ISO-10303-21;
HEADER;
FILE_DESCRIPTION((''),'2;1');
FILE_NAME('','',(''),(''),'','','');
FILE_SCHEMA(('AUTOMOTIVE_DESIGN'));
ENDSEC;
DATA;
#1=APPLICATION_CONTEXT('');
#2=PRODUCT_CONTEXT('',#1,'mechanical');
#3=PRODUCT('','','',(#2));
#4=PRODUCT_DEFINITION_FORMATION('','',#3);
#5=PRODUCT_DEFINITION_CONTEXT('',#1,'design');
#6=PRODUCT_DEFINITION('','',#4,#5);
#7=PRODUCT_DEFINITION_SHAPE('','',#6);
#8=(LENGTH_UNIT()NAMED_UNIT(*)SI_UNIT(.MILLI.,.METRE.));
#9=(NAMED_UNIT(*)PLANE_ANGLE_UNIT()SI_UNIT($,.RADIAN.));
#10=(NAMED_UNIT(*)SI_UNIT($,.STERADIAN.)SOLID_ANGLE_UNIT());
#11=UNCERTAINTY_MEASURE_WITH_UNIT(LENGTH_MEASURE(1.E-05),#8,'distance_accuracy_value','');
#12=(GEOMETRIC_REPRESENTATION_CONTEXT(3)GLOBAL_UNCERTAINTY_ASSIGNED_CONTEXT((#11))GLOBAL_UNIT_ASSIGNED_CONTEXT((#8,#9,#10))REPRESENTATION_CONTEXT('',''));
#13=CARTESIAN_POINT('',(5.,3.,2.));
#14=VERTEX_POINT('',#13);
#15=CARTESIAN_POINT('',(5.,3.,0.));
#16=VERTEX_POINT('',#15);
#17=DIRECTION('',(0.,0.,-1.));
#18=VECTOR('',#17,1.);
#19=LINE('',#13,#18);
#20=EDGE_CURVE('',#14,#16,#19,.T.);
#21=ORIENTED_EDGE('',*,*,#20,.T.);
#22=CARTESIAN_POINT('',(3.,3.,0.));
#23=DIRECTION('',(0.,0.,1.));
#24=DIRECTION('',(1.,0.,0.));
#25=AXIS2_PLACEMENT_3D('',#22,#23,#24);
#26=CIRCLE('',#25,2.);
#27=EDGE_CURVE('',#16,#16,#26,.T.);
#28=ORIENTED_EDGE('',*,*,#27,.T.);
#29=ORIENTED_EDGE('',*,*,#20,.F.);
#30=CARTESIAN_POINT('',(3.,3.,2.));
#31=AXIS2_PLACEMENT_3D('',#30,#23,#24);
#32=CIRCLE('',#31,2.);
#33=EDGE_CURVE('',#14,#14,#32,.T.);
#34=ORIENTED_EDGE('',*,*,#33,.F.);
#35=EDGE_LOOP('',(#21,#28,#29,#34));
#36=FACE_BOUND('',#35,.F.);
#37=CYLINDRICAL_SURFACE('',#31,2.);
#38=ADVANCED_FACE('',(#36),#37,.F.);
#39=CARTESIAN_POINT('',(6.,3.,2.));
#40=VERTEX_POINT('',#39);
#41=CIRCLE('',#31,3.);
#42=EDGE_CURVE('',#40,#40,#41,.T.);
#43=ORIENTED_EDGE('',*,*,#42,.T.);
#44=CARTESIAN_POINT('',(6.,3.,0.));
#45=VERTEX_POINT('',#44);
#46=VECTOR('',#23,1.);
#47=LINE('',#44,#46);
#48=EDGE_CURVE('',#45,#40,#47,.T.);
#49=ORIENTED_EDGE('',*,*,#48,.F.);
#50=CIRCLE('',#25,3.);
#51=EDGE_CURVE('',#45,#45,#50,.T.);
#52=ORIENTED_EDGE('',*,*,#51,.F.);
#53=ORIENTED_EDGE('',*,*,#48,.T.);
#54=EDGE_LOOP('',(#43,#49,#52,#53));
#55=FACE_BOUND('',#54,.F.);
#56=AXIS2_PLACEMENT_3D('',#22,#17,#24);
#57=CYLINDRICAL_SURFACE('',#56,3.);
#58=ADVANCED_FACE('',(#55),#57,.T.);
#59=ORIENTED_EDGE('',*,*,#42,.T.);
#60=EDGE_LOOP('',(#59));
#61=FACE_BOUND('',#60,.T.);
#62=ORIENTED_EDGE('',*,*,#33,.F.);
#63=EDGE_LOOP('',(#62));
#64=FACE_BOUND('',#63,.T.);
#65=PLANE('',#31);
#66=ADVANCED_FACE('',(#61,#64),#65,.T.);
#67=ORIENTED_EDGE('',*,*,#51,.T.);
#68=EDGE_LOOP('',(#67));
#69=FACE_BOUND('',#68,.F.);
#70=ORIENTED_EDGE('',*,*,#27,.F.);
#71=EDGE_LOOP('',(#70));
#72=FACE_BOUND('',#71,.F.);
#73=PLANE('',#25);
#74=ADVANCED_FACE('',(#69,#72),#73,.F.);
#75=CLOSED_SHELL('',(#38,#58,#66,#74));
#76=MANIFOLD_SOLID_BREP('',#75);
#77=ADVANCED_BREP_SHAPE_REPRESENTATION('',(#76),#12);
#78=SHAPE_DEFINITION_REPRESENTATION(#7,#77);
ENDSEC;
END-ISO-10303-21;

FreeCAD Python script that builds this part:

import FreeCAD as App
import Part
import Sketcher
Q = App.Units.Quantity

doc = App.newDocument("Part")
body = doc.addObject("PartDesign::Body", "Body")

# Sketch on XY plane
sketch1 = body.newObject("Sketcher::SketchObject", "Sketch")
sketch1.AttachmentSupport = (doc.getObject("XY_Plane"), [""])
sketch1.MapMode = "FlatFace"
sketch1.addGeometry(Part.Circle(App.Vector(3, 3, 0), App.Vector(0, 0, 1), 3), False)
sketch1.addConstraint([
    Sketcher.Constraint("Diameter", 0, Q("6 mm")),
    Sketcher.Constraint("DistanceX", -1, 1, 0, 3, Q("3 mm")),
    Sketcher.Constraint("DistanceY", -1, 1, 0, 3, Q("3 mm")),
])
pad1 = body.newObject("PartDesign::Pad", "Pad")
pad1.Profile = sketch1
pad1.Length = 2

# Sketch on XY plane
sketch2 = body.newObject("Sketcher::SketchObject", "Sketch001")
sketch2.AttachmentSupport = (doc.getObject("XY_Plane"), [""])
sketch2.MapMode = "FlatFace"
sketch2.AttachmentOffset = App.Placement(App.Vector(0, 0, 2), App.Rotation())
sketch2.addGeometry(Part.Circle(App.Vector(3, 3, 0), App.Vector(0, 0, 1), 2), False)
sketch2.addConstraint([
    Sketcher.Constraint("Diameter", 0, Q("4 mm")),
    Sketcher.Constraint("DistanceX", -1, 1, 0, 3, Q("3 mm")),
    Sketcher.Constraint("DistanceY", -1, 1, 0, 3, Q("3 mm")),
])
pocket1 = body.newObject("PartDesign::Pocket", "Pocket")
pocket1.Profile = sketch2
pocket1.Length = 5

doc.recompute()
